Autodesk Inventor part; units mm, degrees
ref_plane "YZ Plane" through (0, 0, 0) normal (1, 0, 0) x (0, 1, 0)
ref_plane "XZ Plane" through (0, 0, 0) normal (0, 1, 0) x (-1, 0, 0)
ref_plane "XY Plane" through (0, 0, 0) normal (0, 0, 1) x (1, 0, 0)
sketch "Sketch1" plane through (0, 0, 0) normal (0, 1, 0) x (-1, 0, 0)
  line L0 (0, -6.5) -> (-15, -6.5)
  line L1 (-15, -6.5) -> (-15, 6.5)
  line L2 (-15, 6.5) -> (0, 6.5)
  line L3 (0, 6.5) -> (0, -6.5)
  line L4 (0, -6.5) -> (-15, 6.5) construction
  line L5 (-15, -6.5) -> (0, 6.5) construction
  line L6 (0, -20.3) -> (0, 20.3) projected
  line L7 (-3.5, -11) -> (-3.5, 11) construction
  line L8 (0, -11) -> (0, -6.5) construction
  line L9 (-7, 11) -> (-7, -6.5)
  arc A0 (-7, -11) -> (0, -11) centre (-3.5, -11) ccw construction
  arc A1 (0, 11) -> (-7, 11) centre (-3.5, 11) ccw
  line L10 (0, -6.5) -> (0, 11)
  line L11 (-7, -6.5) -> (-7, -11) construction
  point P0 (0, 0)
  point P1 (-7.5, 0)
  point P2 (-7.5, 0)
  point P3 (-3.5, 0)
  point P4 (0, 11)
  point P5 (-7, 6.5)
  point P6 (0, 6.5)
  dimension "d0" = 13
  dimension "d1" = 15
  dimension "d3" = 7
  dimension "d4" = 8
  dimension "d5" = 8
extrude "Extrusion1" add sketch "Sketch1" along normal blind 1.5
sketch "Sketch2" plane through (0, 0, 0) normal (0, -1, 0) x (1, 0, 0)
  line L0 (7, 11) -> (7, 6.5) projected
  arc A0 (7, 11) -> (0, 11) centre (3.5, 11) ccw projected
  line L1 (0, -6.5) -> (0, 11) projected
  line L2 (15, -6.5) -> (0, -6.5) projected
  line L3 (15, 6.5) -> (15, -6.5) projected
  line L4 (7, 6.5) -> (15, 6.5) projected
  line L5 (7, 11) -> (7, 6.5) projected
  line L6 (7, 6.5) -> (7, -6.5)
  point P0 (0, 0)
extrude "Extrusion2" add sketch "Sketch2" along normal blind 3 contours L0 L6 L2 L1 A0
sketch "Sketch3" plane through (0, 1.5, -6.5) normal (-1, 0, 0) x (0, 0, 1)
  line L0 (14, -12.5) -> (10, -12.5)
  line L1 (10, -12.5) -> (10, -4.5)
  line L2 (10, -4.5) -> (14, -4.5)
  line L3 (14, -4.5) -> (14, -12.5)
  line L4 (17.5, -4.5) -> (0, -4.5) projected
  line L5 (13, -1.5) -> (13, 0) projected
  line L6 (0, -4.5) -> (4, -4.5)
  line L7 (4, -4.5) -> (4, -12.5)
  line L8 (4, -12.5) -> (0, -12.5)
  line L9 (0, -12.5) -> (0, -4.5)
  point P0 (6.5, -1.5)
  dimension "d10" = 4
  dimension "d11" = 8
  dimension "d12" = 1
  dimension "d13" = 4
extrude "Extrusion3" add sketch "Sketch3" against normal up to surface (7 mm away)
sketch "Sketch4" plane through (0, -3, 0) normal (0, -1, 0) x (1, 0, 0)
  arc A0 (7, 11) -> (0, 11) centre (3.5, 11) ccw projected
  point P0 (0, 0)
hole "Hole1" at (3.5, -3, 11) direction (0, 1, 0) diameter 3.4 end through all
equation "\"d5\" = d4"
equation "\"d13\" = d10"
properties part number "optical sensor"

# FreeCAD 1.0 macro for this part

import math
import FreeCAD as App
import Part
import Sketcher

doc = App.newDocument("Part")
body = doc.addObject("PartDesign::Body", "Body")

# Sketch on XZ plane
sketch1 = body.newObject("Sketcher::SketchObject", "Sketch")
sketch1.AttachmentSupport = (doc.getObject("XZ_Plane"), [""])
sketch1.MapMode = "FlatFace"
sketch1.addGeometry([
    Part.LineSegment(App.Vector(0, -6.5, 0), App.Vector(0, 11, 0)),  # 0
    Part.ArcOfCircle(Part.Circle(App.Vector(3.5, 11, 0), App.Vector(0, 0, 1), 3.5), math.radians(0), math.radians(180)),  # 1
    Part.LineSegment(App.Vector(7, 11, 0), App.Vector(7, 6.5, 0)),  # 2
    Part.LineSegment(App.Vector(7, 6.5, 0), App.Vector(15, 6.5, 0)),  # 3
    Part.LineSegment(App.Vector(15, 6.5, 0), App.Vector(15, -6.5, 0)),  # 4
    Part.LineSegment(App.Vector(15, -6.5, 0), App.Vector(0, -6.5, 0)),  # 5
], False)
sketch1.addConstraint([
    Sketcher.Constraint("Tangent", 0, 2, 1, 2),
    Sketcher.Constraint("Tangent", 1, 1, 2, 1),
    Sketcher.Constraint("Coincident", 2, 2, 3, 1),
    Sketcher.Constraint("Coincident", 3, 2, 4, 1),
    Sketcher.Constraint("Coincident", 4, 2, 5, 1),
    Sketcher.Constraint("Coincident", 5, 2, 0, 1),
    Sketcher.Constraint("Vertical", 0),
    Sketcher.Constraint("Vertical", 2),
    Sketcher.Constraint("Horizontal", 3),
    Sketcher.Constraint("Vertical", 4),
    Sketcher.Constraint("Horizontal", 5),
    Sketcher.Constraint("PointOnObject", 0, 2, -2),
    Sketcher.Constraint("Radius", 1, 3.5),
    Sketcher.Constraint("DistanceX", 3, 1, 3, 2, 8.0),
    Sketcher.Constraint("DistanceY", 4, 2, 4, 1, 13.0),
    Sketcher.Constraint("DistanceY", 0, 1, 0, 2, 17.5),
    Sketcher.Constraint("DistanceY", -1, 1, 1, 3, 11.0),
])
pad1 = body.newObject("PartDesign::Pad", "Pad")
pad1.Profile = sketch1
pad1.Length = 1.5
pad1.Reversed = True

# Sketch on XZ plane
sketch2 = body.newObject("Sketcher::SketchObject", "Sketch001")
sketch2.AttachmentSupport = (doc.getObject("XZ_Plane"), [""])
sketch2.MapMode = "FlatFace"
sketch2.addGeometry([
    Part.LineSegment(App.Vector(7, -6.5, 0), App.Vector(7, 11, 0)),
    Part.ArcOfCircle(Part.Circle(App.Vector(3.5, 11, 0), App.Vector(0, 0, 1), 3.5), math.radians(0), math.radians(180)),
    Part.LineSegment(App.Vector(0, 11, 0), App.Vector(0, -6.5, 0)),
    Part.LineSegment(App.Vector(0, -6.5, 0), App.Vector(7, -6.5, 0)),
], False)
sketch2.addConstraint([
    Sketcher.Constraint("Tangent", 0, 2, 1, 1),
    Sketcher.Constraint("Tangent", 1, 2, 2, 1),
    Sketcher.Constraint("Coincident", 2, 2, 3, 1),
    Sketcher.Constraint("Coincident", 3, 2, 0, 1),
    Sketcher.Constraint("Vertical", 0),
    Sketcher.Constraint("Vertical", 2),
    Sketcher.Constraint("Horizontal", 3),
    Sketcher.Constraint("PointOnObject", 1, 2, -2),
    Sketcher.Constraint("Radius", 1, 3.5),
    Sketcher.Constraint("DistanceY", 0, 1, 0, 2, 17.5),
    Sketcher.Constraint("DistanceY", -1, 1, 1, 3, 11.0),
])
pad2 = body.newObject("PartDesign::Pad", "Pad001")
pad2.Profile = sketch2
pad2.Length = 3

# Sketch on YZ plane
sketch3 = body.newObject("Sketcher::SketchObject", "Sketch002")
sketch3.AttachmentSupport = (doc.getObject("YZ_Plane"), [""])
sketch3.MapMode = "FlatFace"
sketch3.addGeometry([
    Part.LineSegment(App.Vector(-11, -2.5, 0), App.Vector(-3, -2.5, 0)),  # 0
    Part.LineSegment(App.Vector(-3, -2.5, 0), App.Vector(-3, -6.5, 0)),  # 1
    Part.LineSegment(App.Vector(-3, -6.5, 0), App.Vector(-11, -6.5, 0)),  # 2
    Part.LineSegment(App.Vector(-11, -6.5, 0), App.Vector(-11, -2.5, 0)),  # 3
    Part.LineSegment(App.Vector(-11, 3.5, 0), App.Vector(-11, 7.5, 0)),  # 4
    Part.LineSegment(App.Vector(-11, 7.5, 0), App.Vector(-3, 7.5, 0)),  # 5
    Part.LineSegment(App.Vector(-3, 7.5, 0), App.Vector(-3, 3.5, 0)),  # 6
    Part.LineSegment(App.Vector(-3, 3.5, 0), App.Vector(-11, 3.5, 0)),  # 7
], False)
sketch3.addConstraint([
    Sketcher.Constraint("Coincident", 0, 2, 1, 1),
    Sketcher.Constraint("Coincident", 1, 2, 2, 1),
    Sketcher.Constraint("Coincident", 2, 2, 3, 1),
    Sketcher.Constraint("Coincident", 3, 2, 0, 1),
    Sketcher.Constraint("Coincident", 4, 2, 5, 1),
    Sketcher.Constraint("Coincident", 5, 2, 6, 1),
    Sketcher.Constraint("Coincident", 6, 2, 7, 1),
    Sketcher.Constraint("Coincident", 7, 2, 4, 1),
    Sketcher.Constraint("Horizontal", 0),
    Sketcher.Constraint("Vertical", 1),
    Sketcher.Constraint("Horizontal", 2),
    Sketcher.Constraint("Vertical", 3),
    Sketcher.Constraint("Vertical", 4),
    Sketcher.Constraint("Horizontal", 5),
    Sketcher.Constraint("Vertical", 6),
    Sketcher.Constraint("Horizontal", 7),
    Sketcher.Constraint("Vertical", 3, 2, 4, 2),
    Sketcher.Constraint("Vertical", 1, 2, 5, 2),
    Sketcher.Constraint("Equal", 3, 4),
    Sketcher.Constraint("DistanceX", 0, 1, 0, 2, 8.0),
    Sketcher.Constraint("DistanceY", 1, 2, 1, 1, 4.0),
    Sketcher.Constraint("DistanceX", 0, 2, -1, 1, 3.0),
    Sketcher.Constraint("DistanceY", 3, 2, 4, 2, 10.0),
    Sketcher.Constraint("DistanceY", 0, 2, -1, 1, 2.5),
])
pad3 = body.newObject("PartDesign::Pad", "Pad002")
pad3.Profile = sketch3
pad3.Length = 7

# Sketch on XZ plane
sketch4 = body.newObject("Sketcher::SketchObject", "Sketch003")
sketch4.AttachmentSupport = (doc.getObject("XZ_Plane"), [""])
sketch4.MapMode = "FlatFace"
sketch4.AttachmentOffset = App.Placement(App.Vector(0, 0, 3), App.Rotation())
sketch4.addGeometry(Part.Circle(App.Vector(3.5, 11, 0), App.Vector(0, 0, 1), 1.7), False)
sketch4.addConstraint([
    Sketcher.Constraint("Diameter", 0, 3.4),
    Sketcher.Constraint("DistanceY", -1, 1, 0, 3, 11.0),
    Sketcher.Constraint("DistanceX", -1, 1, 0, 3, 3.5),
])
doc.recompute()
hole = body.newObject("PartDesign::Hole", "Hole")
hole.Profile = sketch4
hole.ThreadType = "None"
hole.Diameter = 3.4
hole.DepthType = "ThroughAll"

doc.recompute()
